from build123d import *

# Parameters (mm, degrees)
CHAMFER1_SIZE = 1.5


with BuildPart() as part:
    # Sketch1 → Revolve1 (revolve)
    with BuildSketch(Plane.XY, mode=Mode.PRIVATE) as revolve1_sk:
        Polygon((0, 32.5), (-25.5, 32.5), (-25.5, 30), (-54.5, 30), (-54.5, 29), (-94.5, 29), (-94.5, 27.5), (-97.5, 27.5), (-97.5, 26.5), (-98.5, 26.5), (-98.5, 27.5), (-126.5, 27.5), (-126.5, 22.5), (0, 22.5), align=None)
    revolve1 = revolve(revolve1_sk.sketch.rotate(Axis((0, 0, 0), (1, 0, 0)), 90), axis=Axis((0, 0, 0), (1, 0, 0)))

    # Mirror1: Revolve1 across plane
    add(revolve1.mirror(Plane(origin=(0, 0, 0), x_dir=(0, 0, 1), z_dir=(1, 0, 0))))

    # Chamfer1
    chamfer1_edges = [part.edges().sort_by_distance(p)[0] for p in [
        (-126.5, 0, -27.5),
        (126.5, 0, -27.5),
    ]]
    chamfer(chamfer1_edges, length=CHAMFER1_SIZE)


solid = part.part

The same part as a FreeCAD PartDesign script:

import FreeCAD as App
import Part
import Sketcher
Q = App.Units.Quantity


def edges_at(feature, points):
    """Names of the edges that pass closest to the given points."""
    edges = feature.Shape.Edges
    near = lambda p: min(range(len(edges)), key=lambda i: edges[i].distToShape(Part.Vertex(*p))[0])
    return sorted({f"Edge{near(p) + 1}" for p in points})


def add_polygon(sketch, points):
    """Adds a closed chain of lines whose ends are joined by coincident constraints."""
    first, n = sketch.GeometryCount, len(points)
    for a, b in zip(points, points[1:] + points[:1]):
        sketch.addGeometry(Part.LineSegment(App.Vector(*a, 0), App.Vector(*b, 0)), False)
    for i in range(n):
        sketch.addConstraint(Sketcher.Constraint("Coincident", first + i, 2, first + (i + 1) % n, 1))

doc = App.newDocument("Part")
params = doc.addObject("Spreadsheet::Sheet", "Params")
for row, (alias, value) in enumerate([
    ("sketch1_width", "29 mm"),
    ("sketch1_width2", "40 mm"),
    ("sketch1_width3", "3 mm"),
    ("sketch1_width4", "1 mm"),
    ("sketch1_width5", "28 mm"),
    ("revolution_angle", "360 deg"),
    ("chamfer_size", "1.5 mm"),
], start=1):
    params.set(f"A{row}", alias)
    params.set(f"B{row}", "=" + value)
    params.setAlias(f"B{row}", alias)

body = doc.addObject("PartDesign::Body", "Body")

sketch1 = doc.addObject("Sketcher::SketchObject", "Sketch")
body.addObject(sketch1)
sketch1.AttachmentSupport = (doc.XY_Plane, [""])
sketch1.MapMode = "FlatFace"
add_polygon(sketch1, [(0, 32.5), (-25.5, 32.5), (-25.5, 30), (-54.5, 30), (-54.5, 29), (-94.5, 29), (-94.5, 27.5), (-97.5, 27.5), (-97.5, 26.5), (-98.5, 26.5), (-98.5, 27.5), (-126.5, 27.5), (-126.5, 22.5), (0, 22.5)])
sketch1.addConstraint(Sketcher.Constraint("Horizontal", 0))
sketch1.addConstraint(Sketcher.Constraint("Vertical", 1))
sketch1.addConstraint(Sketcher.Constraint("Horizontal", 2))
sketch1.addConstraint(Sketcher.Constraint("Vertical", 3))
sketch1.addConstraint(Sketcher.Constraint("Horizontal", 4))
sketch1.addConstraint(Sketcher.Constraint("Vertical", 5))
sketch1.addConstraint(Sketcher.Constraint("Horizontal", 6))
sketch1.addConstraint(Sketcher.Constraint("Vertical", 7))
sketch1.addConstraint(Sketcher.Constraint("Horizontal", 8))
sketch1.addConstraint(Sketcher.Constraint("Vertical", 9))
sketch1.addConstraint(Sketcher.Constraint("Horizontal", 10))
sketch1.addConstraint(Sketcher.Constraint("Vertical", 11))
sketch1.addConstraint(Sketcher.Constraint("Horizontal", 12))
sketch1.addConstraint(Sketcher.Constraint("Vertical", 13))
sketch1.addConstraint(Sketcher.Constraint("PointOnObject", 12, 2, -2))
sketch1.addConstraint(Sketcher.Constraint("Horizontal", 6, 2, 9, 2))
sketch1.addConstraint(Sketcher.Constraint("Equal", 8, 3))
sketch1.addConstraint(Sketcher.Constraint("Equal", 3, 7))
sketch1.addConstraint(Sketcher.Constraint("DistanceX", 2, 2, 2, 1, Q("29 mm")))
sketch1.addConstraint(Sketcher.Constraint("DistanceX", 4, 2, 4, 1, Q("40 mm")))
sketch1.addConstraint(Sketcher.Constraint("DistanceX", 6, 2, 6, 1, Q("3 mm")))
sketch1.addConstraint(Sketcher.Constraint("DistanceX", 8, 2, 8, 1, Q("1 mm")))
sketch1.addConstraint(Sketcher.Constraint("DistanceX", 10, 2, 10, 1, Q("28 mm")))
sketch1.addConstraint(Sketcher.Constraint("DistanceY", 11, 2, 11, 1, Q("5 mm")))
sketch1.addConstraint(Sketcher.Constraint("DistanceY", 13, 1, 13, 2, Q("10 mm")))
sketch1.addConstraint(Sketcher.Constraint("DistanceX", 0, 2, 0, 1, Q("25.5 mm")))
sketch1.addConstraint(Sketcher.Constraint("DistanceY", 1, 2, 1, 1, Q("2.5 mm")))
sketch1.addConstraint(Sketcher.Constraint("DistanceY", -1, 1, 1, 2, Q("30 mm")))
sketch1.setExpression("Constraints[32]", "Params.sketch1_width")
sketch1.setExpression("Constraints[33]", "Params.sketch1_width2")
sketch1.setExpression("Constraints[34]", "Params.sketch1_width3")
sketch1.setExpression("Constraints[35]", "Params.sketch1_width4")
sketch1.setExpression("Constraints[36]", "Params.sketch1_width5")
revolution = doc.addObject("PartDesign::Revolution", "Revolution")
body.addObject(revolution)
revolution.Profile = sketch1
revolution.ReferenceAxis = (sketch1, ["H_Axis"])
revolution.setExpression("Angle", "Params.revolution_angle")
doc.recompute()

mirrored = doc.addObject("PartDesign::Mirrored", "Mirrored")
body.addObject(mirrored)
mirrored.Originals = [revolution]
mirrored.MirrorPlane = (doc.YZ_Plane, [""])
body.Tip = mirrored
doc.recompute()

chamfer = doc.addObject("PartDesign::Chamfer", "Chamfer")
body.addObject(chamfer)
chamfer.Base = (mirrored, edges_at(mirrored, [(-126.5, 0, -27.5), (126.5, 0, -27.5)]))
chamfer.setExpression("Size", "Params.chamfer_size")

doc.recompute()
